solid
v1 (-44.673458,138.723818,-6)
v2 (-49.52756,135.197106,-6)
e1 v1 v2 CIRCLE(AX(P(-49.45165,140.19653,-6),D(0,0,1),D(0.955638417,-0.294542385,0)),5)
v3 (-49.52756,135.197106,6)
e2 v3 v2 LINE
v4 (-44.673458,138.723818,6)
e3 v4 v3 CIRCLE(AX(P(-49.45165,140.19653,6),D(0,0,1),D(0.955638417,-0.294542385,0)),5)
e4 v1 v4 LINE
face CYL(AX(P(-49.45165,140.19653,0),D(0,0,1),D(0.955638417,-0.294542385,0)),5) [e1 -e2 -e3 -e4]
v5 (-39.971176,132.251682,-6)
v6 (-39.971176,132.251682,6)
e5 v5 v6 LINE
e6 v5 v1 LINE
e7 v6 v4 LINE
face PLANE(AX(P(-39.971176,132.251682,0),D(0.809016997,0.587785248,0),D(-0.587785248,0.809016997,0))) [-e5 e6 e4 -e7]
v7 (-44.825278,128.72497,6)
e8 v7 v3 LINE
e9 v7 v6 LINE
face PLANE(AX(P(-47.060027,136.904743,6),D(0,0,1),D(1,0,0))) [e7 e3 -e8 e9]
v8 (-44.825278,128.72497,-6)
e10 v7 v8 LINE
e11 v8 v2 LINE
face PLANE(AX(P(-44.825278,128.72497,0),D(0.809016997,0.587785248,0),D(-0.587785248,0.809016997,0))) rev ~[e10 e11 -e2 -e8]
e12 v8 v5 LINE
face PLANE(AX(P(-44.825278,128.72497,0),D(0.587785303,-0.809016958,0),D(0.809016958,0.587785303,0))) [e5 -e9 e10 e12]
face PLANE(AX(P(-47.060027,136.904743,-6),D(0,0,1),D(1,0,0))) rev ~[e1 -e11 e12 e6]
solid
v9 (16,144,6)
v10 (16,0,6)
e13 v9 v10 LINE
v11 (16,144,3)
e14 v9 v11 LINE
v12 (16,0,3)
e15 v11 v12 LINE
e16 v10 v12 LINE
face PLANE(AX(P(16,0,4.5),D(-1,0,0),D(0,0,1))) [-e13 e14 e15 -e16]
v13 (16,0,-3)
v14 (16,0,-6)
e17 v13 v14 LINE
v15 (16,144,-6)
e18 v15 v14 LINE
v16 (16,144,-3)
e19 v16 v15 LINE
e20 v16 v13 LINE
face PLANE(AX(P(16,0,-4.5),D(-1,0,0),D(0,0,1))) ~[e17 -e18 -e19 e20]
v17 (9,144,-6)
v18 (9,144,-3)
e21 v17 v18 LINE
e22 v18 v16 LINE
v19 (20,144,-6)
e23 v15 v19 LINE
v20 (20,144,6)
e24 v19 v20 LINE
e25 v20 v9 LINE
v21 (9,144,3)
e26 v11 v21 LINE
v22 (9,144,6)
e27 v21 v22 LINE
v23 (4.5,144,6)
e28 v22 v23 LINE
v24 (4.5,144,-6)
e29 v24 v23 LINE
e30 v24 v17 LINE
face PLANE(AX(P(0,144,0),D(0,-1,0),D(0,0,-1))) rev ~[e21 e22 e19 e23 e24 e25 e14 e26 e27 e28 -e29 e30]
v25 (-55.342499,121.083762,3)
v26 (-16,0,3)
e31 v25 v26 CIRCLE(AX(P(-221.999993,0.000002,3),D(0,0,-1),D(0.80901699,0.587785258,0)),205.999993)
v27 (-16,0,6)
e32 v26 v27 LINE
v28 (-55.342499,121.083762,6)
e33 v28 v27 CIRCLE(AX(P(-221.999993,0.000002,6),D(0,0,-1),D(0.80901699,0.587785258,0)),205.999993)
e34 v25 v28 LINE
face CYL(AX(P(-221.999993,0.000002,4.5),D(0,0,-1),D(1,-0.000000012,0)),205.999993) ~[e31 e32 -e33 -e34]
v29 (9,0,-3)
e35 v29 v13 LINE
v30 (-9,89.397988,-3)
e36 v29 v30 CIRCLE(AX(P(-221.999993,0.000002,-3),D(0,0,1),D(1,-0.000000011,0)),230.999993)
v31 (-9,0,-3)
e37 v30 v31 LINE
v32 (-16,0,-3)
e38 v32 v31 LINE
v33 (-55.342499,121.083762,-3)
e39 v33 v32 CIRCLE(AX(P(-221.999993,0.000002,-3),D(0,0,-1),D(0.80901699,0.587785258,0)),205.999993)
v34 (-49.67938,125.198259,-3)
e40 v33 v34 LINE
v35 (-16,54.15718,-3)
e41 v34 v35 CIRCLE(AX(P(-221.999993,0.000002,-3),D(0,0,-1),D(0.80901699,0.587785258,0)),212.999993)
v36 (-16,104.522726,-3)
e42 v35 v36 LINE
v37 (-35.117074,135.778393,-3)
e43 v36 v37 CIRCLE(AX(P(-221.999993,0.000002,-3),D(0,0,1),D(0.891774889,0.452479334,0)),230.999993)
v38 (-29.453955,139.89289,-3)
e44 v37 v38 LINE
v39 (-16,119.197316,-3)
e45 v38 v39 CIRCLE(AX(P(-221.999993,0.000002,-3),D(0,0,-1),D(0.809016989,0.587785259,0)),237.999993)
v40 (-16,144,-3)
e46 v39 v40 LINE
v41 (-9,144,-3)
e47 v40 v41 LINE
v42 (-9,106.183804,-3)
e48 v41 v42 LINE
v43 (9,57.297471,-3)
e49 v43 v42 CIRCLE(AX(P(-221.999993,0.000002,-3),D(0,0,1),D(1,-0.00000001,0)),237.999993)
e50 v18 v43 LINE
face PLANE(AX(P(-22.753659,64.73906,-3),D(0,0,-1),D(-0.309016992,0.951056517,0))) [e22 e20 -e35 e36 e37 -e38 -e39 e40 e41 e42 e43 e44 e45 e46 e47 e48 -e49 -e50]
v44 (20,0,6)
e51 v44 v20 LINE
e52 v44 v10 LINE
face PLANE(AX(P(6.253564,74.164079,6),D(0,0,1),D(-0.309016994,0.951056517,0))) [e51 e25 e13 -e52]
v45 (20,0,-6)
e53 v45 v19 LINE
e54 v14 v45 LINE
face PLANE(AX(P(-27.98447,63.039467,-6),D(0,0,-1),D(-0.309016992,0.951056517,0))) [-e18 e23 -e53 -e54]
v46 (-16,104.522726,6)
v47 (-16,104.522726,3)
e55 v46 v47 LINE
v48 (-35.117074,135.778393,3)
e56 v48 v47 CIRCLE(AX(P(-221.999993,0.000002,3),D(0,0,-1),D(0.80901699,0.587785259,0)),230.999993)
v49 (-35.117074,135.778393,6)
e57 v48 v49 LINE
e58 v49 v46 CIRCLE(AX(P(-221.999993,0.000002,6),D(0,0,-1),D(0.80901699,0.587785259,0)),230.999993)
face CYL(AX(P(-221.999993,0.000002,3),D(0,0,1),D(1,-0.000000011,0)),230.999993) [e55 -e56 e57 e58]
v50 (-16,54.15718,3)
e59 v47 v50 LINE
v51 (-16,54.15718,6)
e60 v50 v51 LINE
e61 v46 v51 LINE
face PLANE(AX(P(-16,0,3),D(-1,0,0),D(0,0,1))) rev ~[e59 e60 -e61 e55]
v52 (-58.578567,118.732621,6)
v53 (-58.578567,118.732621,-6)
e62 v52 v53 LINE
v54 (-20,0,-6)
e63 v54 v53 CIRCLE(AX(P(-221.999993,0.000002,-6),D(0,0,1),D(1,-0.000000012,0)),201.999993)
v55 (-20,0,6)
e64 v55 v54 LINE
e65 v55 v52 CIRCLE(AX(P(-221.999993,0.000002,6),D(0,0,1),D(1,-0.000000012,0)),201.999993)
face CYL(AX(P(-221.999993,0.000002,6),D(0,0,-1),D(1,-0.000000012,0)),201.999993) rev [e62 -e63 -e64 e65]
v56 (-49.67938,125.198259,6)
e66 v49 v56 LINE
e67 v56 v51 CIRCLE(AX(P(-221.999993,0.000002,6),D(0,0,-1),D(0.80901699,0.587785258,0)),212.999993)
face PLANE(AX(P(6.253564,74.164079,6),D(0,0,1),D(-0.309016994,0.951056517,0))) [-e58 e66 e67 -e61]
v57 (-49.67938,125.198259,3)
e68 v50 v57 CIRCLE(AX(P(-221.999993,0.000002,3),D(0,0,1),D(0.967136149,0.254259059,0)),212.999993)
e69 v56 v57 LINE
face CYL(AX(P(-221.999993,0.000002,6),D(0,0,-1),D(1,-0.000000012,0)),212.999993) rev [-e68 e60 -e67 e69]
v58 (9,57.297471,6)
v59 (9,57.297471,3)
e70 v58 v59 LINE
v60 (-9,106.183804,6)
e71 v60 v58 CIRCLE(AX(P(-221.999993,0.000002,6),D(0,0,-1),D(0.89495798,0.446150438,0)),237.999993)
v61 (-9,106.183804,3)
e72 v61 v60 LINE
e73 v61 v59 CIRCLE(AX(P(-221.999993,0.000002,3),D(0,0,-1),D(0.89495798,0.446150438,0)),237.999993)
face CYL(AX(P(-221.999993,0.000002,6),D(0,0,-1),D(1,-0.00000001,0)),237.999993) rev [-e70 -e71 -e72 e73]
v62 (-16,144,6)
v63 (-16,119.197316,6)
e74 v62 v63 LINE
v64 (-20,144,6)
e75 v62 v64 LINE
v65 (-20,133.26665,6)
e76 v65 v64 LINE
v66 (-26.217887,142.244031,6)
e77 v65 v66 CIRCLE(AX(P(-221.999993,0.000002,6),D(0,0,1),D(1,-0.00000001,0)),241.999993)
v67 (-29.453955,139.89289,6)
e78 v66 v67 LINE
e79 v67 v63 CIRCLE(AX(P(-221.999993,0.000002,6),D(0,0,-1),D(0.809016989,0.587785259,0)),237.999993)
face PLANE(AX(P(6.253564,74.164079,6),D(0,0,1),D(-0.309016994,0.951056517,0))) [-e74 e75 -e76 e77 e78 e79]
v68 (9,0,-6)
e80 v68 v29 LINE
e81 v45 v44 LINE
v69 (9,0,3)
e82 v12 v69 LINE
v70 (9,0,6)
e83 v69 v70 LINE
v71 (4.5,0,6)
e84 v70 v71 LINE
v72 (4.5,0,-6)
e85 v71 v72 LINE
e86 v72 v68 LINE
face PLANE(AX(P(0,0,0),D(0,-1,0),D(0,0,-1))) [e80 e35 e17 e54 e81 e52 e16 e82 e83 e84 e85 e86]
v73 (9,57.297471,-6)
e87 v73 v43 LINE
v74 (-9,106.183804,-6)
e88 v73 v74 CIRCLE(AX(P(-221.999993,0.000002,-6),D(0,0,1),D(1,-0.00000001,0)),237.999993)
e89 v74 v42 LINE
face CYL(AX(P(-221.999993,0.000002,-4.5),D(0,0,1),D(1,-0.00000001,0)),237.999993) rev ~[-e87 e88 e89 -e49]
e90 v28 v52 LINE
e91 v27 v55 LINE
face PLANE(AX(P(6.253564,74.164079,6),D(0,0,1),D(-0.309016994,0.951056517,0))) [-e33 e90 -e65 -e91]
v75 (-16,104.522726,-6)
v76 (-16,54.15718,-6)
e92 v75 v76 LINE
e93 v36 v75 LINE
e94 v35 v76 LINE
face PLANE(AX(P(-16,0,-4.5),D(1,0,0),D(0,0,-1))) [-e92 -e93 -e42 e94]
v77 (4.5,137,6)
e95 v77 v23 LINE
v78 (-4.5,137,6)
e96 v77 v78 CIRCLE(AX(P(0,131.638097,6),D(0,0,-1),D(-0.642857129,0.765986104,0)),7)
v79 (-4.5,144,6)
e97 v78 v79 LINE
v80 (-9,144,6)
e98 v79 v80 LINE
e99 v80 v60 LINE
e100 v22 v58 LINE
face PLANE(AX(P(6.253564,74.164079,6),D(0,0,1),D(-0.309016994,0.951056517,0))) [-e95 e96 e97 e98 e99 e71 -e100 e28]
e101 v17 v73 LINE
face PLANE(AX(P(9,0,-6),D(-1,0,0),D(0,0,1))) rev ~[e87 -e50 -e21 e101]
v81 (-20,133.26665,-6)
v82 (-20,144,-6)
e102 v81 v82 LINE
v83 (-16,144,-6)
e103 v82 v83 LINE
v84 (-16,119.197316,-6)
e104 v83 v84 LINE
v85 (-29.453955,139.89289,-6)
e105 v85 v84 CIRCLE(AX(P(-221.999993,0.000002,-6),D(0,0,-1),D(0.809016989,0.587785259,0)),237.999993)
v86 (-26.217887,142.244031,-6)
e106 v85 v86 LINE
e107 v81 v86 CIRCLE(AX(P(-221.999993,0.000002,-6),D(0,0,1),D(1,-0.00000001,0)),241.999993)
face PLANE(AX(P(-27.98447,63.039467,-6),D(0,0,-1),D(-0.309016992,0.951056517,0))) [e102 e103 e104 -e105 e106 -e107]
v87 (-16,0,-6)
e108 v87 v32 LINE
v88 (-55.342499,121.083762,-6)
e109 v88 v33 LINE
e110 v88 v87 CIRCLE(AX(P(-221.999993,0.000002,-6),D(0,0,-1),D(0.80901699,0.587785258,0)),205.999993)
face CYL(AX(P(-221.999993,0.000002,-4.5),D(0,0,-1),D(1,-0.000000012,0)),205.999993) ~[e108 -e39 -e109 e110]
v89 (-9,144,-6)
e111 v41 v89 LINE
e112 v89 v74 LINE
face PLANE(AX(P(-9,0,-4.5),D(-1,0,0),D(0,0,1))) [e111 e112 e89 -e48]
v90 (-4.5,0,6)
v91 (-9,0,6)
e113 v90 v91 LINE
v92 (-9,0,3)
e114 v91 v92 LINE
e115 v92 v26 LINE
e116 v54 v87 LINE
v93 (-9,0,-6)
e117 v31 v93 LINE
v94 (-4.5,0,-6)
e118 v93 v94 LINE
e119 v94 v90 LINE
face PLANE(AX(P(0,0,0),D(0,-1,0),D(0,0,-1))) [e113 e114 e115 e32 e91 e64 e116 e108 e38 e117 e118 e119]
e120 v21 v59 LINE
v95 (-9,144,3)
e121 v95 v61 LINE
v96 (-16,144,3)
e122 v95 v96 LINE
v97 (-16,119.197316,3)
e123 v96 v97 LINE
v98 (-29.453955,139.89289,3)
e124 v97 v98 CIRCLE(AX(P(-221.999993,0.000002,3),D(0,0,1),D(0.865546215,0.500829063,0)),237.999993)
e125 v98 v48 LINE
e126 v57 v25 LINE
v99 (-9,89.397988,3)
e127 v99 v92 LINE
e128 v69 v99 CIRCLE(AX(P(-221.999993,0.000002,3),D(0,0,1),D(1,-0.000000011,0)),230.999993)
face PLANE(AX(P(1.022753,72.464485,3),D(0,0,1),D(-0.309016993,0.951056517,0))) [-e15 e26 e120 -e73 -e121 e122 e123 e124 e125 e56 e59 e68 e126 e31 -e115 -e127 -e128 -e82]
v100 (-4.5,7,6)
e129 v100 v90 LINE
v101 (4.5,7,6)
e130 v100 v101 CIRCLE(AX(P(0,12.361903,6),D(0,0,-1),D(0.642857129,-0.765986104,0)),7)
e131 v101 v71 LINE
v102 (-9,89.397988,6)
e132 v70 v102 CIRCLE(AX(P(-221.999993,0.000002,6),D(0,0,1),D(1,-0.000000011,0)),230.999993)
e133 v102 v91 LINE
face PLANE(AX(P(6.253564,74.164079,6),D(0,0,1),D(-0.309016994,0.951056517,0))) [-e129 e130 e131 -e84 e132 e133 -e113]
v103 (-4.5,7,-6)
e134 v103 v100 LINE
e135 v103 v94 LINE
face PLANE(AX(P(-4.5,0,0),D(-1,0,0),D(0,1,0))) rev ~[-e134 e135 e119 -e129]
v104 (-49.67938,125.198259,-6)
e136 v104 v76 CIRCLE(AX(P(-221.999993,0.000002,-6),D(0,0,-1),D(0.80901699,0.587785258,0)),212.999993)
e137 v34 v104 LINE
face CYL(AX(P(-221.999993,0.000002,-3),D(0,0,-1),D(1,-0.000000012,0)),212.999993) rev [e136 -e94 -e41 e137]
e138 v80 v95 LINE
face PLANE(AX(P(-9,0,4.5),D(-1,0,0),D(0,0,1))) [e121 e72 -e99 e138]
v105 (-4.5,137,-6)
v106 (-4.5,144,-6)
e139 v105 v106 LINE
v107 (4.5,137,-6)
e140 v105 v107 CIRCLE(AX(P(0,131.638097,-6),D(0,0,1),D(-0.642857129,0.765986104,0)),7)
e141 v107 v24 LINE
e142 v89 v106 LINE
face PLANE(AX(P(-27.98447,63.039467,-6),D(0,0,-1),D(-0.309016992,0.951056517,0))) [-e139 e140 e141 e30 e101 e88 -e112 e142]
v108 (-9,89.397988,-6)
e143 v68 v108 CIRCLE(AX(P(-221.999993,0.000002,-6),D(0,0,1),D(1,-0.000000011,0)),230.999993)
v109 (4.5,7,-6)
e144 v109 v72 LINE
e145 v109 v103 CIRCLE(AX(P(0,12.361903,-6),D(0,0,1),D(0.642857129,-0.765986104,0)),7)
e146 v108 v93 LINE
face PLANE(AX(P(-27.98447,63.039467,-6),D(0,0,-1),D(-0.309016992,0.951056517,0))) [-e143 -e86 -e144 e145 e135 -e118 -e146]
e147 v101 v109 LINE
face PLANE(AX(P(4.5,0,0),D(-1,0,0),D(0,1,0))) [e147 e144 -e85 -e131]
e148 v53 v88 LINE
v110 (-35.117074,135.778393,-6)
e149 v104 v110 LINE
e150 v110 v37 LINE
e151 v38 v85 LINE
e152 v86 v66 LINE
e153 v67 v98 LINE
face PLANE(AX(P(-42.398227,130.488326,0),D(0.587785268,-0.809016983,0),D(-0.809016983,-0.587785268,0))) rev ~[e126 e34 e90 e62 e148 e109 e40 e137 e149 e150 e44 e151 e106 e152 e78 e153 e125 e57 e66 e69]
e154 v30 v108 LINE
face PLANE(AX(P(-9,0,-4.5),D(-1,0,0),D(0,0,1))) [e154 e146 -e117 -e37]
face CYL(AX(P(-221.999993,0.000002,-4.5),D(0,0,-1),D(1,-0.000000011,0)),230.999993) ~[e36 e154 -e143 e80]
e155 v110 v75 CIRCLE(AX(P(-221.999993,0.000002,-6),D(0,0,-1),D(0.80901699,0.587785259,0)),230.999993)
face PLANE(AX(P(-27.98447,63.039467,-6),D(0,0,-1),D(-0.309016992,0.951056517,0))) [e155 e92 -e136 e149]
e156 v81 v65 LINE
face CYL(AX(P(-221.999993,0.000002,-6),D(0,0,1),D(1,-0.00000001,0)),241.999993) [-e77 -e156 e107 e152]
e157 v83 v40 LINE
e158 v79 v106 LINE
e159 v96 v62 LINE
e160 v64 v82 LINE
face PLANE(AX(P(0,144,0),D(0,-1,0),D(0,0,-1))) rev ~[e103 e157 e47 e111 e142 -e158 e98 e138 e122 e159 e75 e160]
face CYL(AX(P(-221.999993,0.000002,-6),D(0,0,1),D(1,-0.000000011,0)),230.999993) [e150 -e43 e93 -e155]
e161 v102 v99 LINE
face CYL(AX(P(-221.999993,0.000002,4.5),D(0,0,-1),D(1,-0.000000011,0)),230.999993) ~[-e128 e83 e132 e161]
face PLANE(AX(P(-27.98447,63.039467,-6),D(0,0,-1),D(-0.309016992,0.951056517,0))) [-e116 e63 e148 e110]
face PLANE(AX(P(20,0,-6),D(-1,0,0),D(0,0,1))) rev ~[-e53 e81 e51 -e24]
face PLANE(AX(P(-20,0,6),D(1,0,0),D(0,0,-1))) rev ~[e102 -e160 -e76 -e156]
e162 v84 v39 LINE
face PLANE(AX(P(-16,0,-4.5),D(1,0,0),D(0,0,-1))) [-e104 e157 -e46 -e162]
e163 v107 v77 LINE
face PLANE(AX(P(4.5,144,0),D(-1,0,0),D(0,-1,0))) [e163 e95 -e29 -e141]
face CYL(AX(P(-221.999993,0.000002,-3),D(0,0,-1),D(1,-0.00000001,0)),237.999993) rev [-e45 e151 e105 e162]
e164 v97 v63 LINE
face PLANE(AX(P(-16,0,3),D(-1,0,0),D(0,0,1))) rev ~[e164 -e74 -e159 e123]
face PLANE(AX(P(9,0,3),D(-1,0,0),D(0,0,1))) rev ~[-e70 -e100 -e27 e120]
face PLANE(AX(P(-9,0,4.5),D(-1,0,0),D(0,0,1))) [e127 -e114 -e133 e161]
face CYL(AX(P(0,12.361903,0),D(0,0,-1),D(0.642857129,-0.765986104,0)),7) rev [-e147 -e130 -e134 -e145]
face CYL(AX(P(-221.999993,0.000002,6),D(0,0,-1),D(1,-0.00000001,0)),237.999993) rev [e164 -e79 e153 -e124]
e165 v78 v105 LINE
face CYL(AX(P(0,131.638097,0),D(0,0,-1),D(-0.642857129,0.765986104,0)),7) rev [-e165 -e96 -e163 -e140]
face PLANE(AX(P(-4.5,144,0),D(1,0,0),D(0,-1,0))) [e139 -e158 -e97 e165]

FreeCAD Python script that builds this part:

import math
import FreeCAD as App
import Part
import Sketcher
Q = App.Units.Quantity

doc = App.newDocument("Part")
body = doc.addObject("PartDesign::Body", "Body")

# Sketch on XZ plane
sketch1 = body.newObject("Sketcher::SketchObject", "Sketch")
sketch1.AttachmentSupport = (doc.getObject("XZ_Plane"), [""])
sketch1.MapMode = "FlatFace"
sketch1.addGeometry(Part.LineSegment(App.Vector(-20, 6, 0), App.Vector(-20, -6, 0)), False)
sketch1.addGeometry(Part.LineSegment(App.Vector(-20, -6, 0), App.Vector(-16, -6, 0)), False)
sketch1.addGeometry(Part.LineSegment(App.Vector(-16, -6, 0), App.Vector(-16, -3, 0)), False)
sketch1.addGeometry(Part.LineSegment(App.Vector(-16, -3, 0), App.Vector(-9, -3, 0)), False)
sketch1.addGeometry(Part.LineSegment(App.Vector(-9, -3, 0), App.Vector(-9, -6, 0)), False)
sketch1.addGeometry(Part.LineSegment(App.Vector(-9, -6, 0), App.Vector(9, -6, 0)), False)
sketch1.addGeometry(Part.LineSegment(App.Vector(9, -6, 0), App.Vector(9, -3, 0)), False)
sketch1.addGeometry(Part.LineSegment(App.Vector(9, -3, 0), App.Vector(16, -3, 0)), False)
sketch1.addGeometry(Part.LineSegment(App.Vector(16, -3, 0), App.Vector(16, -6, 0)), False)
sketch1.addGeometry(Part.LineSegment(App.Vector(16, -6, 0), App.Vector(20, -6, 0)), False)
sketch1.addGeometry(Part.LineSegment(App.Vector(20, -6, 0), App.Vector(20, 6, 0)), False)
sketch1.addGeometry(Part.LineSegment(App.Vector(20, 6, 0), App.Vector(16, 6, 0)), False)
sketch1.addGeometry(Part.LineSegment(App.Vector(16, 6, 0), App.Vector(16, 3, 0)), False)
sketch1.addGeometry(Part.LineSegment(App.Vector(16, 3, 0), App.Vector(9, 3, 0)), False)
sketch1.addGeometry(Part.LineSegment(App.Vector(9, 3, 0), App.Vector(9, 6, 0)), False)
sketch1.addGeometry(Part.LineSegment(App.Vector(9, 6, 0), App.Vector(-9, 6, 0)), False)
sketch1.addGeometry(Part.LineSegment(App.Vector(-9, 6, 0), App.Vector(-9, 3, 0)), False)
sketch1.addGeometry(Part.LineSegment(App.Vector(-9, 3, 0), App.Vector(-16, 3, 0)), False)
sketch1.addGeometry(Part.LineSegment(App.Vector(-16, 3, 0), App.Vector(-16, 6, 0)), False)
sketch1.addGeometry(Part.LineSegment(App.Vector(-16, 6, 0), App.Vector(-20, 6, 0)), False)
sketch1.addConstraint(Sketcher.Constraint("Coincident", 0, 2, 1, 1))
sketch1.addConstraint(Sketcher.Constraint("Coincident", 1, 2, 2, 1))
sketch1.addConstraint(Sketcher.Constraint("Coincident", 2, 2, 3, 1))
sketch1.addConstraint(Sketcher.Constraint("Coincident", 3, 2, 4, 1))
sketch1.addConstraint(Sketcher.Constraint("Coincident", 4, 2, 5, 1))
sketch1.addConstraint(Sketcher.Constraint("Coincident", 5, 2, 6, 1))
sketch1.addConstraint(Sketcher.Constraint("Coincident", 6, 2, 7, 1))
sketch1.addConstraint(Sketcher.Constraint("Coincident", 7, 2, 8, 1))
sketch1.addConstraint(Sketcher.Constraint("Coincident", 8, 2, 9, 1))
sketch1.addConstraint(Sketcher.Constraint("Coincident", 9, 2, 10, 1))
sketch1.addConstraint(Sketcher.Constraint("Coincident", 10, 2, 11, 1))
sketch1.addConstraint(Sketcher.Constraint("Coincident", 11, 2, 12, 1))
sketch1.addConstraint(Sketcher.Constraint("Coincident", 12, 2, 13, 1))
sketch1.addConstraint(Sketcher.Constraint("Coincident", 13, 2, 14, 1))
sketch1.addConstraint(Sketcher.Constraint("Coincident", 14, 2, 15, 1))
sketch1.addConstraint(Sketcher.Constraint("Coincident", 15, 2, 16, 1))
sketch1.addConstraint(Sketcher.Constraint("Coincident", 16, 2, 17, 1))
sketch1.addConstraint(Sketcher.Constraint("Coincident", 17, 2, 18, 1))
sketch1.addConstraint(Sketcher.Constraint("Coincident", 18, 2, 19, 1))
sketch1.addConstraint(Sketcher.Constraint("Coincident", 19, 2, 0, 1))
sketch1.addConstraint(Sketcher.Constraint("Vertical", 0))
sketch1.addConstraint(Sketcher.Constraint("Horizontal", 1))
sketch1.addConstraint(Sketcher.Constraint("Vertical", 2))
sketch1.addConstraint(Sketcher.Constraint("Horizontal", 3))
sketch1.addConstraint(Sketcher.Constraint("Vertical", 4))
sketch1.addConstraint(Sketcher.Constraint("Horizontal", 5))
sketch1.addConstraint(Sketcher.Constraint("Vertical", 6))
sketch1.addConstraint(Sketcher.Constraint("Horizontal", 7))
sketch1.addConstraint(Sketcher.Constraint("Vertical", 8))
sketch1.addConstraint(Sketcher.Constraint("Horizontal", 9))
sketch1.addConstraint(Sketcher.Constraint("Vertical", 10))
sketch1.addConstraint(Sketcher.Constraint("Horizontal", 11))
sketch1.addConstraint(Sketcher.Constraint("Vertical", 12))
sketch1.addConstraint(Sketcher.Constraint("Horizontal", 13))
sketch1.addConstraint(Sketcher.Constraint("Vertical", 14))
sketch1.addConstraint(Sketcher.Constraint("Horizontal", 15))
sketch1.addConstraint(Sketcher.Constraint("Vertical", 16))
sketch1.addConstraint(Sketcher.Constraint("Horizontal", 17))
sketch1.addConstraint(Sketcher.Constraint("Vertical", 18))
sketch1.addConstraint(Sketcher.Constraint("Horizontal", 19))
sketch1.addConstraint(Sketcher.Constraint("Symmetric", 0, 2, 10, 2, -1, 1))
sketch1.addConstraint(Sketcher.Constraint("Symmetric", 2, 2, 12, 2, -1, 1))
sketch1.addConstraint(Sketcher.Constraint("Symmetric", 4, 2, 14, 2, -1, 1))
sketch1.addConstraint(Sketcher.Constraint("Symmetric", 6, 2, 16, 2, -1, 1))
sketch1.addConstraint(Sketcher.Constraint("Symmetric", 8, 2, 18, 2, -1, 1))
sketch1.addConstraint(Sketcher.Constraint("Symmetric", 3, 2, 6, 2, -2))
sketch1.addConstraint(Sketcher.Constraint("Symmetric", 1, 2, 8, 2, -2))
sketch1.addConstraint(Sketcher.Constraint("Horizontal", 1, 2, 4, 2))
sketch1.addConstraint(Sketcher.Constraint("DistanceX", 1, 1, 1, 2, Q("4 mm")))
sketch1.addConstraint(Sketcher.Constraint("DistanceX", 3, 1, 3, 2, Q("7 mm")))
sketch1.addConstraint(Sketcher.Constraint("DistanceX", 5, 1, 5, 2, Q("18 mm")))
sketch1.addConstraint(Sketcher.Constraint("DistanceY", 0, 2, 0, 1, Q("12 mm")))
sketch1.addConstraint(Sketcher.Constraint("DistanceY", 2, 1, 2, 2, Q("3 mm")))

# Sketch on XY plane
sketch2 = body.newObject("Sketcher::SketchObject", "Sketch001")
sketch2.AttachmentSupport = (doc.getObject("XY_Plane"), [""])
sketch2.MapMode = "FlatFace"
sketch2.addGeometry(Part.ArcOfCircle(Part.Circle(App.Vector(-221.999993, 0.000002, 0), App.Vector(0, 0, 1), 221.999993), math.radians(-0.000001), math.radians(36)), False)
sketch2.addConstraint(Sketcher.Constraint("Coincident", 0, 1, -1, 1))
sketch2.addConstraint(Sketcher.Constraint("Radius", 0, Q("221.999993 mm")))
sketch2.addConstraint(Sketcher.Constraint("DistanceX", 0, 2, -1, 1, Q("42.398227 mm")))
sketch2.addConstraint(Sketcher.Constraint("DistanceY", -1, 1, 0, 2, Q("130.488326 mm")))
doc.recompute()

additivepipe = body.newObject("PartDesign::AdditivePipe", "AdditivePipe")
additivepipe.Profile = sketch1
additivepipe.Spine = (sketch2, ["Edge1"])

# Sketch on XZ plane
sketch3 = body.newObject("Sketcher::SketchObject", "Sketch002")
sketch3.AttachmentSupport = (doc.getObject("XZ_Plane"), [""])
sketch3.MapMode = "FlatFace"
sketch3.addGeometry(Part.LineSegment(App.Vector(-20, 6, 0), App.Vector(-20, -6, 0)), False)
sketch3.addGeometry(Part.LineSegment(App.Vector(-20, -6, 0), App.Vector(-16, -6, 0)), False)
sketch3.addGeometry(Part.LineSegment(App.Vector(-16, -6, 0), App.Vector(-16, -3, 0)), False)
sketch3.addGeometry(Part.LineSegment(App.Vector(-16, -3, 0), App.Vector(-9, -3, 0)), False)
sketch3.addGeometry(Part.LineSegment(App.Vector(-9, -3, 0), App.Vector(-9, -6, 0)), False)
sketch3.addGeometry(Part.LineSegment(App.Vector(-9, -6, 0), App.Vector(9, -6, 0)), False)
sketch3.addGeometry(Part.LineSegment(App.Vector(9, -6, 0), App.Vector(9, -3, 0)), False)
sketch3.addGeometry(Part.LineSegment(App.Vector(9, -3, 0), App.Vector(16, -3, 0)), False)
sketch3.addGeometry(Part.LineSegment(App.Vector(16, -3, 0), App.Vector(16, -6, 0)), False)
sketch3.addGeometry(Part.LineSegment(App.Vector(16, -6, 0), App.Vector(20, -6, 0)), False)
sketch3.addGeometry(Part.LineSegment(App.Vector(20, -6, 0), App.Vector(20, 6, 0)), False)
sketch3.addGeometry(Part.LineSegment(App.Vector(20, 6, 0), App.Vector(16, 6, 0)), False)
sketch3.addGeometry(Part.LineSegment(App.Vector(16, 6, 0), App.Vector(16, 3, 0)), False)
sketch3.addGeometry(Part.LineSegment(App.Vector(16, 3, 0), App.Vector(9, 3, 0)), False)
sketch3.addGeometry(Part.LineSegment(App.Vector(9, 3, 0), App.Vector(9, 6, 0)), False)
sketch3.addGeometry(Part.LineSegment(App.Vector(9, 6, 0), App.Vector(-9, 6, 0)), False)
sketch3.addGeometry(Part.LineSegment(App.Vector(-9, 6, 0), App.Vector(-9, 3, 0)), False)
sketch3.addGeometry(Part.LineSegment(App.Vector(-9, 3, 0), App.Vector(-16, 3, 0)), False)
sketch3.addGeometry(Part.LineSegment(App.Vector(-16, 3, 0), App.Vector(-16, 6, 0)), False)
sketch3.addGeometry(Part.LineSegment(App.Vector(-16, 6, 0), App.Vector(-20, 6, 0)), False)
sketch3.addConstraint(Sketcher.Constraint("Coincident", 0, 2, 1, 1))
sketch3.addConstraint(Sketcher.Constraint("Coincident", 1, 2, 2, 1))
sketch3.addConstraint(Sketcher.Constraint("Coincident", 2, 2, 3, 1))
sketch3.addConstraint(Sketcher.Constraint("Coincident", 3, 2, 4, 1))
sketch3.addConstraint(Sketcher.Constraint("Coincident", 4, 2, 5, 1))
sketch3.addConstraint(Sketcher.Constraint("Coincident", 5, 2, 6, 1))
sketch3.addConstraint(Sketcher.Constraint("Coincident", 6, 2, 7, 1))
sketch3.addConstraint(Sketcher.Constraint("Coincident", 7, 2, 8, 1))
sketch3.addConstraint(Sketcher.Constraint("Coincident", 8, 2, 9, 1))
sketch3.addConstraint(Sketcher.Constraint("Coincident", 9, 2, 10, 1))
sketch3.addConstraint(Sketcher.Constraint("Coincident", 10, 2, 11, 1))
sketch3.addConstraint(Sketcher.Constraint("Coincident", 11, 2, 12, 1))
sketch3.addConstraint(Sketcher.Constraint("Coincident", 12, 2, 13, 1))
sketch3.addConstraint(Sketcher.Constraint("Coincident", 13, 2, 14, 1))
sketch3.addConstraint(Sketcher.Constraint("Coincident", 14, 2, 15, 1))
sketch3.addConstraint(Sketcher.Constraint("Coincident", 15, 2, 16, 1))
sketch3.addConstraint(Sketcher.Constraint("Coincident", 16, 2, 17, 1))
sketch3.addConstraint(Sketcher.Constraint("Coincident", 17, 2, 18, 1))
sketch3.addConstraint(Sketcher.Constraint("Coincident", 18, 2, 19, 1))
sketch3.addConstraint(Sketcher.Constraint("Coincident", 19, 2, 0, 1))
sketch3.addConstraint(Sketcher.Constraint("Vertical", 0))
sketch3.addConstraint(Sketcher.Constraint("Horizontal", 1))
sketch3.addConstraint(Sketcher.Constraint("Vertical", 2))
sketch3.addConstraint(Sketcher.Constraint("Horizontal", 3))
sketch3.addConstraint(Sketcher.Constraint("Vertical", 4))
sketch3.addConstraint(Sketcher.Constraint("Horizontal", 5))
sketch3.addConstraint(Sketcher.Constraint("Vertical", 6))
sketch3.addConstraint(Sketcher.Constraint("Horizontal", 7))
sketch3.addConstraint(Sketcher.Constraint("Vertical", 8))
sketch3.addConstraint(Sketcher.Constraint("Horizontal", 9))
sketch3.addConstraint(Sketcher.Constraint("Vertical", 10))
sketch3.addConstraint(Sketcher.Constraint("Horizontal", 11))
sketch3.addConstraint(Sketcher.Constraint("Vertical", 12))
sketch3.addConstraint(Sketcher.Constraint("Horizontal", 13))
sketch3.addConstraint(Sketcher.Constraint("Vertical", 14))
sketch3.addConstraint(Sketcher.Constraint("Horizontal", 15))
sketch3.addConstraint(Sketcher.Constraint("Vertical", 16))
sketch3.addConstraint(Sketcher.Constraint("Horizontal", 17))
sketch3.addConstraint(Sketcher.Constraint("Vertical", 18))
sketch3.addConstraint(Sketcher.Constraint("Horizontal", 19))
sketch3.addConstraint(Sketcher.Constraint("Symmetric", 0, 2, 10, 2, -1, 1))
sketch3.addConstraint(Sketcher.Constraint("Symmetric", 2, 2, 12, 2, -1, 1))
sketch3.addConstraint(Sketcher.Constraint("Symmetric", 4, 2, 14, 2, -1, 1))
sketch3.addConstraint(Sketcher.Constraint("Symmetric", 6, 2, 16, 2, -1, 1))
sketch3.addConstraint(Sketcher.Constraint("Symmetric", 8, 2, 18, 2, -1, 1))
sketch3.addConstraint(Sketcher.Constraint("Symmetric", 3, 2, 6, 2, -2))
sketch3.addConstraint(Sketcher.Constraint("Symmetric", 1, 2, 8, 2, -2))
sketch3.addConstraint(Sketcher.Constraint("Horizontal", 1, 2, 4, 2))
sketch3.addConstraint(Sketcher.Constraint("DistanceX", 1, 1, 1, 2, Q("4 mm")))
sketch3.addConstraint(Sketcher.Constraint("DistanceX", 3, 1, 3, 2, Q("7 mm")))
sketch3.addConstraint(Sketcher.Constraint("DistanceX", 5, 1, 5, 2, Q("18 mm")))
sketch3.addConstraint(Sketcher.Constraint("DistanceY", 0, 2, 0, 1, Q("12 mm")))
sketch3.addConstraint(Sketcher.Constraint("DistanceY", 2, 1, 2, 2, Q("3 mm")))

# Sketch on XY plane
sketch4 = body.newObject("Sketcher::SketchObject", "Sketch003")
sketch4.AttachmentSupport = (doc.getObject("XY_Plane"), [""])
sketch4.MapMode = "FlatFace"
sketch4.addGeometry(Part.LineSegment(App.Vector(0, 0, 0), App.Vector(0, 144, 0)), False)
sketch4.addConstraint(Sketcher.Constraint("Vertical", 0))
sketch4.addConstraint(Sketcher.Constraint("Coincident", 0, 1, -1, 1))
sketch4.addConstraint(Sketcher.Constraint("DistanceY", 0, 1, 0, 2, Q("144 mm")))
doc.recompute()

additivepipe2 = body.newObject("PartDesign::AdditivePipe", "AdditivePipe001")
additivepipe2.Profile = sketch3
additivepipe2.Spine = (sketch4, ["Edge1"])

# Sketch on XZ plane
sketch5 = body.newObject("Sketcher::SketchObject", "Sketch004")
sketch5.AttachmentSupport = (doc.getObject("XZ_Plane"), [""])
sketch5.MapMode = "FlatFace"
sketch5.addGeometry(Part.LineSegment(App.Vector(-16, 6, 0), App.Vector(-16, 3, 0)), False)
sketch5.addGeometry(Part.LineSegment(App.Vector(-16, 3, 0), App.Vector(-9, 3, 0)), False)
sketch5.addGeometry(Part.LineSegment(App.Vector(-9, 3, 0), App.Vector(-9, 6, 0)), False)
sketch5.addGeometry(Part.LineSegment(App.Vector(-9, 6, 0), App.Vector(-16, 6, 0)), False)
sketch5.addConstraint(Sketcher.Constraint("Coincident", 0, 2, 1, 1))
sketch5.addConstraint(Sketcher.Constraint("Coincident", 1, 2, 2, 1))
sketch5.addConstraint(Sketcher.Constraint("Coincident", 2, 2, 3, 1))
sketch5.addConstraint(Sketcher.Constraint("Coincident", 3, 2, 0, 1))
sketch5.addConstraint(Sketcher.Constraint("Vertical", 0))
sketch5.addConstraint(Sketcher.Constraint("Horizontal", 1))
sketch5.addConstraint(Sketcher.Constraint("Vertical", 2))
sketch5.addConstraint(Sketcher.Constraint("Horizontal", 3))
sketch5.addConstraint(Sketcher.Constraint("DistanceX", 1, 1, 1, 2, Q("7 mm")))
sketch5.addConstraint(Sketcher.Constraint("DistanceY", 0, 2, 0, 1, Q("3 mm")))
sketch5.addConstraint(Sketcher.Constraint("DistanceX", 0, 2, -1, 1, Q("16 mm")))
sketch5.addConstraint(Sketcher.Constraint("DistanceY", -1, 1, 0, 2, Q("3 mm")))

# Sketch on XY plane
sketch6 = body.newObject("Sketcher::SketchObject", "Sketch005")
sketch6.AttachmentSupport = (doc.getObject("XY_Plane"), [""])
sketch6.MapMode = "FlatFace"
sketch6.addGeometry(Part.LineSegment(App.Vector(0, 0, 0), App.Vector(0, 144, 0)), False)
sketch6.addConstraint(Sketcher.Constraint("Vertical", 0))
sketch6.addConstraint(Sketcher.Constraint("Coincident", 0, 1, -1, 1))
sketch6.addConstraint(Sketcher.Constraint("DistanceY", 0, 1, 0, 2, Q("144 mm")))
doc.recompute()

subtractivepipe = body.newObject("PartDesign::SubtractivePipe", "SubtractivePipe")
subtractivepipe.Profile = sketch5
subtractivepipe.Spine = (sketch6, ["Edge1"])

# Sketch on XZ plane
sketch7 = body.newObject("Sketcher::SketchObject", "Sketch006")
sketch7.AttachmentSupport = (doc.getObject("XZ_Plane"), [""])
sketch7.MapMode = "FlatFace"
sketch7.addGeometry(Part.LineSegment(App.Vector(-16, 6, 0), App.Vector(-16, 3, 0)), False)
sketch7.addGeometry(Part.LineSegment(App.Vector(-16, 3, 0), App.Vector(-9, 3, 0)), False)
sketch7.addGeometry(Part.LineSegment(App.Vector(-9, 3, 0), App.Vector(-9, 6, 0)), False)
sketch7.addGeometry(Part.LineSegment(App.Vector(-9, 6, 0), App.Vector(-16, 6, 0)), False)
sketch7.addConstraint(Sketcher.Constraint("Coincident", 0, 2, 1, 1))
sketch7.addConstraint(Sketcher.Constraint("Coincident", 1, 2, 2, 1))
sketch7.addConstraint(Sketcher.Constraint("Coincident", 2, 2, 3, 1))
sketch7.addConstraint(Sketcher.Constraint("Coincident", 3, 2, 0, 1))
sketch7.addConstraint(Sketcher.Constraint("Vertical", 0))
sketch7.addConstraint(Sketcher.Constraint("Horizontal", 1))
sketch7.addConstraint(Sketcher.Constraint("Vertical", 2))
sketch7.addConstraint(Sketcher.Constraint("Horizontal", 3))
sketch7.addConstraint(Sketcher.Constraint("DistanceX", 1, 1, 1, 2, Q("7 mm")))
sketch7.addConstraint(Sketcher.Constraint("DistanceY", 0, 2, 0, 1, Q("3 mm")))
sketch7.addConstraint(Sketcher.Constraint("DistanceX", 0, 2, -1, 1, Q("16 mm")))
sketch7.addConstraint(Sketcher.Constraint("DistanceY", -1, 1, 0, 2, Q("3 mm")))

# Sketch on XY plane
sketch8 = body.newObject("Sketcher::SketchObject", "Sketch007")
sketch8.AttachmentSupport = (doc.getObject("XY_Plane"), [""])
sketch8.MapMode = "FlatFace"
sketch8.addGeometry(Part.ArcOfCircle(Part.Circle(App.Vector(-221.999993, 0.000002, 0), App.Vector(0, 0, 1), 221.999993), math.radians(-0.000001), math.radians(36)), False)
sketch8.addConstraint(Sketcher.Constraint("Coincident", 0, 1, -1, 1))
sketch8.addConstraint(Sketcher.Constraint("Radius", 0, Q("221.999993 mm")))
sketch8.addConstraint(Sketcher.Constraint("DistanceX", 0, 2, -1, 1, Q("42.398227 mm")))
sketch8.addConstraint(Sketcher.Constraint("DistanceY", -1, 1, 0, 2, Q("130.488326 mm")))
doc.recompute()

subtractivepipe2 = body.newObject("PartDesign::SubtractivePipe", "SubtractivePipe001")
subtractivepipe2.Profile = sketch7
subtractivepipe2.Spine = (sketch8, ["Edge1"])

# Sketch on XZ plane
sketch9 = body.newObject("Sketcher::SketchObject", "Sketch008")
sketch9.AttachmentSupport = (doc.getObject("XZ_Plane"), [""])
sketch9.MapMode = "FlatFace"
sketch9.addGeometry(Part.LineSegment(App.Vector(9, 6, 0), App.Vector(9, 3, 0)), False)
sketch9.addGeometry(Part.LineSegment(App.Vector(9, 3, 0), App.Vector(16, 3, 0)), False)
sketch9.addGeometry(Part.LineSegment(App.Vector(16, 3, 0), App.Vector(16, 6, 0)), False)
sketch9.addGeometry(Part.LineSegment(App.Vector(16, 6, 0), App.Vector(9, 6, 0)), False)
sketch9.addConstraint(Sketcher.Constraint("Coincident", 0, 2, 1, 1))
sketch9.addConstraint(Sketcher.Constraint("Coincident", 1, 2, 2, 1))
sketch9.addConstraint(Sketcher.Constraint("Coincident", 2, 2, 3, 1))
sketch9.addConstraint(Sketcher.Constraint("Coincident", 3, 2, 0, 1))
sketch9.addConstraint(Sketcher.Constraint("Vertical", 0))
sketch9.addConstraint(Sketcher.Constraint("Horizontal", 1))
sketch9.addConstraint(Sketcher.Constraint("Vertical", 2))
sketch9.addConstraint(Sketcher.Constraint("Horizontal", 3))
sketch9.addConstraint(Sketcher.Constraint("DistanceX", 1, 1, 1, 2, Q("7 mm")))
sketch9.addConstraint(Sketcher.Constraint("DistanceY", 0, 2, 0, 1, Q("3 mm")))
sketch9.addConstraint(Sketcher.Constraint("DistanceX", -1, 1, 0, 2, Q("9 mm")))
sketch9.addConstraint(Sketcher.Constraint("DistanceY", -1, 1, 0, 2, Q("3 mm")))

# Sketch on XY plane
sketch10 = body.newObject("Sketcher::SketchObject", "Sketch009")
sketch10.AttachmentSupport = (doc.getObject("XY_Plane"), [""])
sketch10.MapMode = "FlatFace"
sketch10.addGeometry(Part.ArcOfCircle(Part.Circle(App.Vector(-221.999993, 0.000002, 0), App.Vector(0, 0, 1), 221.999993), math.radians(-0.000001), math.radians(36)), False)
sketch10.addConstraint(Sketcher.Constraint("Coincident", 0, 1, -1, 1))
sketch10.addConstraint(Sketcher.Constraint("Radius", 0, Q("221.999993 mm")))
sketch10.addConstraint(Sketcher.Constraint("DistanceX", 0, 2, -1, 1, Q("42.398227 mm")))
sketch10.addConstraint(Sketcher.Constraint("DistanceY", -1, 1, 0, 2, Q("130.488326 mm")))
doc.recompute()

subtractivepipe3 = body.newObject("PartDesign::SubtractivePipe", "SubtractivePipe002")
subtractivepipe3.Profile = sketch9
subtractivepipe3.Spine = (sketch10, ["Edge1"])

# Sketch on XZ plane
sketch11 = body.newObject("Sketcher::SketchObject", "Sketch010")
sketch11.AttachmentSupport = (doc.getObject("XZ_Plane"), [""])
sketch11.MapMode = "FlatFace"
sketch11.addGeometry(Part.LineSegment(App.Vector(9, 6, 0), App.Vector(9, 3, 0)), False)
sketch11.addGeometry(Part.LineSegment(App.Vector(9, 3, 0), App.Vector(16, 3, 0)), False)
sketch11.addGeometry(Part.LineSegment(App.Vector(16, 3, 0), App.Vector(16, 6, 0)), False)
sketch11.addGeometry(Part.LineSegment(App.Vector(16, 6, 0), App.Vector(9, 6, 0)), False)
sketch11.addConstraint(Sketcher.Constraint("Coincident", 0, 2, 1, 1))
sketch11.addConstraint(Sketcher.Constraint("Coincident", 1, 2, 2, 1))
sketch11.addConstraint(Sketcher.Constraint("Coincident", 2, 2, 3, 1))
sketch11.addConstraint(Sketcher.Constraint("Coincident", 3, 2, 0, 1))
sketch11.addConstraint(Sketcher.Constraint("Vertical", 0))
sketch11.addConstraint(Sketcher.Constraint("Horizontal", 1))
sketch11.addConstraint(Sketcher.Constraint("Vertical", 2))
sketch11.addConstraint(Sketcher.Constraint("Horizontal", 3))
sketch11.addConstraint(Sketcher.Constraint("DistanceX", 1, 1, 1, 2, Q("7 mm")))
sketch11.addConstraint(Sketcher.Constraint("DistanceY", 0, 2, 0, 1, Q("3 mm")))
sketch11.addConstraint(Sketcher.Constraint("DistanceX", -1, 1, 0, 2, Q("9 mm")))
sketch11.addConstraint(Sketcher.Constraint("DistanceY", -1, 1, 0, 2, Q("3 mm")))

# Sketch on XY plane
sketch12 = body.newObject("Sketcher::SketchObject", "Sketch011")
sketch12.AttachmentSupport = (doc.getObject("XY_Plane"), [""])
sketch12.MapMode = "FlatFace"
sketch12.addGeometry(Part.LineSegment(App.Vector(0, 0, 0), App.Vector(0, 144, 0)), False)
sketch12.addConstraint(Sketcher.Constraint("Vertical", 0))
sketch12.addConstraint(Sketcher.Constraint("Coincident", 0, 1, -1, 1))
sketch12.addConstraint(Sketcher.Constraint("DistanceY", 0, 1, 0, 2, Q("144 mm")))
doc.recompute()

subtractivepipe4 = body.newObject("PartDesign::SubtractivePipe", "SubtractivePipe003")
subtractivepipe4.Profile = sketch11
subtractivepipe4.Spine = (sketch12, ["Edge1"])
doc.recompute()

mirrored = body.newObject("PartDesign::Mirrored", "Mirrored")
mirrored.Originals = [subtractivepipe4]
mirrored.MirrorPlane = (doc.getObject("XY_Plane"), [""])
body.Tip = mirrored

# Sketch on XZ plane
sketch13 = body.newObject("Sketcher::SketchObject", "Sketch012")
sketch13.AttachmentSupport = (doc.getObject("XZ_Plane"), [""])
sketch13.MapMode = "FlatFace"
sketch13.addGeometry(Part.LineSegment(App.Vector(-16, -3, 0), App.Vector(-16, -6, 0)), False)
sketch13.addGeometry(Part.LineSegment(App.Vector(-16, -6, 0), App.Vector(-9, -6, 0)), False)
sketch13.addGeometry(Part.LineSegment(App.Vector(-9, -6, 0), App.Vector(-9, -3, 0)), False)
sketch13.addGeometry(Part.LineSegment(App.Vector(-9, -3, 0), App.Vector(-16, -3, 0)), False)
sketch13.addConstraint(Sketcher.Constraint("Coincident", 0, 2, 1, 1))
sketch13.addConstraint(Sketcher.Constraint("Coincident", 1, 2, 2, 1))
sketch13.addConstraint(Sketcher.Constraint("Coincident", 2, 2, 3, 1))
sketch13.addConstraint(Sketcher.Constraint("Coincident", 3, 2, 0, 1))
sketch13.addConstraint(Sketcher.Constraint("Vertical", 0))
sketch13.addConstraint(Sketcher.Constraint("Horizontal", 1))
sketch13.addConstraint(Sketcher.Constraint("Vertical", 2))
sketch13.addConstraint(Sketcher.Constraint("Horizontal", 3))
sketch13.addConstraint(Sketcher.Constraint("DistanceX", 1, 1, 1, 2, Q("7 mm")))
sketch13.addConstraint(Sketcher.Constraint("DistanceY", 0, 2, 0, 1, Q("3 mm")))
sketch13.addConstraint(Sketcher.Constraint("DistanceX", 0, 2, -1, 1, Q("16 mm")))
sketch13.addConstraint(Sketcher.Constraint("DistanceY", 0, 2, -1, 1, Q("6 mm")))

# Sketch on XY plane
sketch14 = body.newObject("Sketcher::SketchObject", "Sketch013")
sketch14.AttachmentSupport = (doc.getObject("XY_Plane"), [""])
sketch14.MapMode = "FlatFace"
sketch14.addGeometry(Part.ArcOfCircle(Part.Circle(App.Vector(-221.999993, 0.000002, 0), App.Vector(0, 0, 1), 221.999993), math.radians(-0.000001), math.radians(36)), False)
sketch14.addConstraint(Sketcher.Constraint("Coincident", 0, 1, -1, 1))
sketch14.addConstraint(Sketcher.Constraint("Radius", 0, Q("221.999993 mm")))
sketch14.addConstraint(Sketcher.Constraint("DistanceX", 0, 2, -1, 1, Q("42.398227 mm")))
sketch14.addConstraint(Sketcher.Constraint("DistanceY", -1, 1, 0, 2, Q("130.488326 mm")))
doc.recompute()

subtractivepipe5 = body.newObject("PartDesign::SubtractivePipe", "SubtractivePipe004")
subtractivepipe5.Profile = sketch13
subtractivepipe5.Spine = (sketch14, ["Edge1"])

# Sketch on XZ plane
sketch15 = body.newObject("Sketcher::SketchObject", "Sketch014")
sketch15.AttachmentSupport = (doc.getObject("XZ_Plane"), [""])
sketch15.MapMode = "FlatFace"
sketch15.addGeometry(Part.LineSegment(App.Vector(-16, -3, 0), App.Vector(-16, -6, 0)), False)
sketch15.addGeometry(Part.LineSegment(App.Vector(-16, -6, 0), App.Vector(-9, -6, 0)), False)
sketch15.addGeometry(Part.LineSegment(App.Vector(-9, -6, 0), App.Vector(-9, -3, 0)), False)
sketch15.addGeometry(Part.LineSegment(App.Vector(-9, -3, 0), App.Vector(-16, -3, 0)), False)
sketch15.addConstraint(Sketcher.Constraint("Coincident", 0, 2, 1, 1))
sketch15.addConstraint(Sketcher.Constraint("Coincident", 1, 2, 2, 1))
sketch15.addConstraint(Sketcher.Constraint("Coincident", 2, 2, 3, 1))
sketch15.addConstraint(Sketcher.Constraint("Coincident", 3, 2, 0, 1))
sketch15.addConstraint(Sketcher.Constraint("Vertical", 0))
sketch15.addConstraint(Sketcher.Constraint("Horizontal", 1))
sketch15.addConstraint(Sketcher.Constraint("Vertical", 2))
sketch15.addConstraint(Sketcher.Constraint("Horizontal", 3))
sketch15.addConstraint(Sketcher.Constraint("DistanceX", 1, 1, 1, 2, Q("7 mm")))
sketch15.addConstraint(Sketcher.Constraint("DistanceY", 0, 2, 0, 1, Q("3 mm")))
sketch15.addConstraint(Sketcher.Constraint("DistanceX", 0, 2, -1, 1, Q("16 mm")))
sketch15.addConstraint(Sketcher.Constraint("DistanceY", 0, 2, -1, 1, Q("6 mm")))

# Sketch on XY plane
sketch16 = body.newObject("Sketcher::SketchObject", "Sketch015")
sketch16.AttachmentSupport = (doc.getObject("XY_Plane"), [""])
sketch16.MapMode = "FlatFace"
sketch16.addGeometry(Part.LineSegment(App.Vector(0, 0, 0), App.Vector(0, 144, 0)), False)
sketch16.addConstraint(Sketcher.Constraint("Vertical", 0))
sketch16.addConstraint(Sketcher.Constraint("Coincident", 0, 1, -1, 1))
sketch16.addConstraint(Sketcher.Constraint("DistanceY", 0, 1, 0, 2, Q("144 mm")))
doc.recompute()

subtractivepipe6 = body.newObject("PartDesign::SubtractivePipe", "SubtractivePipe005")
subtractivepipe6.Profile = sketch15
subtractivepipe6.Spine = (sketch16, ["Edge1"])

# Sketch on XZ plane
sketch17 = body.newObject("Sketcher::SketchObject", "Sketch016")
sketch17.AttachmentSupport = (doc.getObject("XZ_Plane"), [""])
sketch17.MapMode = "FlatFace"
sketch17.addGeometry(Part.LineSegment(App.Vector(9, -3, 0), App.Vector(9, -6, 0)), False)
sketch17.addGeometry(Part.LineSegment(App.Vector(9, -6, 0), App.Vector(16, -6, 0)), False)
sketch17.addGeometry(Part.LineSegment(App.Vector(16, -6, 0), App.Vector(16, -3, 0)), False)
sketch17.addGeometry(Part.LineSegment(App.Vector(16, -3, 0), App.Vector(9, -3, 0)), False)
sketch17.addConstraint(Sketcher.Constraint("Coincident", 0, 2, 1, 1))
sketch17.addConstraint(Sketcher.Constraint("Coincident", 1, 2, 2, 1))
sketch17.addConstraint(Sketcher.Constraint("Coincident", 2, 2, 3, 1))
sketch17.addConstraint(Sketcher.Constraint("Coincident", 3, 2, 0, 1))
sketch17.addConstraint(Sketcher.Constraint("Vertical", 0))
sketch17.addConstraint(Sketcher.Constraint("Horizontal", 1))
sketch17.addConstraint(Sketcher.Constraint("Vertical", 2))
sketch17.addConstraint(Sketcher.Constraint("Horizontal", 3))
sketch17.addConstraint(Sketcher.Constraint("DistanceX", 1, 1, 1, 2, Q("7 mm")))
sketch17.addConstraint(Sketcher.Constraint("DistanceY", 0, 2, 0, 1, Q("3 mm")))
sketch17.addConstraint(Sketcher.Constraint("DistanceX", -1, 1, 0, 2, Q("9 mm")))
sketch17.addConstraint(Sketcher.Constraint("DistanceY", 0, 2, -1, 1, Q("6 mm")))

# Sketch on XY plane
sketch18 = body.newObject("Sketcher::SketchObject", "Sketch017")
sketch18.AttachmentSupport = (doc.getObject("XY_Plane"), [""])
sketch18.MapMode = "FlatFace"
sketch18.addGeometry(Part.ArcOfCircle(Part.Circle(App.Vector(-221.999993, 0.000002, 0), App.Vector(0, 0, 1), 221.999993), math.radians(-0.000001), math.radians(36)), False)
sketch18.addConstraint(Sketcher.Constraint("Coincident", 0, 1, -1, 1))
sketch18.addConstraint(Sketcher.Constraint("Radius", 0, Q("221.999993 mm")))
sketch18.addConstraint(Sketcher.Constraint("DistanceX", 0, 2, -1, 1, Q("42.398227 mm")))
sketch18.addConstraint(Sketcher.Constraint("DistanceY", -1, 1, 0, 2, Q("130.488326 mm")))
doc.recompute()

subtractivepipe7 = body.newObject("PartDesign::SubtractivePipe", "SubtractivePipe006")
subtractivepipe7.Profile = sketch17
subtractivepipe7.Spine = (sketch18, ["Edge1"])

# Sketch on XY plane
sketch19 = body.newObject("Sketcher::SketchObject", "Sketch018")
sketch19.AttachmentSupport = (doc.getObject("XY_Plane"), [""])
sketch19.MapMode = "FlatFace"
sketch19.addGeometry(Part.LineSegment(App.Vector(4.5, 144, 0), App.Vector(-4.5, 144, 0)), False)
sketch19.addGeometry(Part.LineSegment(App.Vector(-4.5, 144, 0), App.Vector(-4.5, 137, 0)), False)
sketch19.addGeometry(Part.ArcOfCircle(Part.Circle(App.Vector(0, 131.638097, 0), App.Vector(0, 0, 1), 7), math.radians(130.0052), math.radians(409.9948)), False)
sketch19.addGeometry(Part.LineSegment(App.Vector(4.5, 137, 0), App.Vector(4.5, 144, 0)), False)
sketch19.addConstraint(Sketcher.Constraint("Coincident", 0, 2, 1, 1))
sketch19.addConstraint(Sketcher.Constraint("Coincident", 1, 2, 2, 1))
sketch19.addConstraint(Sketcher.Constraint("Coincident", 2, 2, 3, 1))
sketch19.addConstraint(Sketcher.Constraint("Coincident", 3, 2, 0, 1))
sketch19.addConstraint(Sketcher.Constraint("Horizontal", 0))
sketch19.addConstraint(Sketcher.Constraint("Vertical", 1))
sketch19.addConstraint(Sketcher.Constraint("Vertical", 3))
sketch19.addConstraint(Sketcher.Constraint("Symmetric", 1, 2, 2, 2, -2))
sketch19.addConstraint(Sketcher.Constraint("Radius", 2, Q("7 mm")))
sketch19.addConstraint(Sketcher.Constraint("DistanceX", 0, 2, 0, 1, Q("9 mm")))
sketch19.addConstraint(Sketcher.Constraint("DistanceY", 1, 2, 1, 1, Q("7 mm")))
sketch19.addConstraint(Sketcher.Constraint("DistanceY", -1, 1, 0, 2, Q("144 mm")))
pocket1 = body.newObject("PartDesign::Pocket", "Pocket")
pocket1.Profile = sketch19
pocket1.Type = "ThroughAll"
pocket1.Midplane = True

# Sketch on XY plane
sketch20 = body.newObject("Sketcher::SketchObject", "Sketch019")
sketch20.AttachmentSupport = (doc.getObject("XY_Plane"), [""])
sketch20.MapMode = "FlatFace"
sketch20.addGeometry(Part.LineSegment(App.Vector(-4.5, 0, 0), App.Vector(4.5, 0, 0)), False)
sketch20.addGeometry(Part.LineSegment(App.Vector(4.5, 0, 0), App.Vector(4.5, 7, 0)), False)
sketch20.addGeometry(Part.ArcOfCircle(Part.Circle(App.Vector(0, 12.361903, 0), App.Vector(0, 0, 1), 7), math.radians(-49.9948), math.radians(229.9948)), False)
sketch20.addGeometry(Part.LineSegment(App.Vector(-4.5, 7, 0), App.Vector(-4.5, 0, 0)), False)
sketch20.addConstraint(Sketcher.Constraint("Coincident", 0, 2, 1, 1))
sketch20.addConstraint(Sketcher.Constraint("Coincident", 1, 2, 2, 1))
sketch20.addConstraint(Sketcher.Constraint("Coincident", 2, 2, 3, 1))
sketch20.addConstraint(Sketcher.Constraint("Coincident", 3, 2, 0, 1))
sketch20.addConstraint(Sketcher.Constraint("Horizontal", 0))
sketch20.addConstraint(Sketcher.Constraint("Vertical", 1))
sketch20.addConstraint(Sketcher.Constraint("Vertical", 3))
sketch20.addConstraint(Sketcher.Constraint("Symmetric", 0, 2, 3, 2, -1, 1))
sketch20.addConstraint(Sketcher.Constraint("PointOnObject", 2, 3, -2))
sketch20.addConstraint(Sketcher.Constraint("Radius", 2, Q("7 mm")))
sketch20.addConstraint(Sketcher.Constraint("DistanceX", 0, 1, 0, 2, Q("9 mm")))
sketch20.addConstraint(Sketcher.Constraint("DistanceY", 1, 1, 1, 2, Q("7 mm")))
pocket2 = body.newObject("PartDesign::Pocket", "Pocket001")
pocket2.Profile = sketch20
pocket2.Type = "ThroughAll"
pocket2.Midplane = True
body2 = doc.addObject("PartDesign::Body", "Body001")

# Sketch on XY plane
sketch21 = body2.newObject("Sketcher::SketchObject", "Sketch020")
sketch21.AttachmentSupport = (doc.getObject("XY_Plane001"), [""])
sketch21.MapMode = "FlatFace"
sketch21.addGeometry(Part.LineSegment(App.Vector(-44.825278, 128.72497, 0), App.Vector(-39.971176, 132.251682, 0)), False)
sketch21.addGeometry(Part.LineSegment(App.Vector(-39.971176, 132.251682, 0), App.Vector(-44.673458, 138.723818, 0)), False)
sketch21.addGeometry(Part.ArcOfCircle(Part.Circle(App.Vector(-49.45165, 140.19653, 0), App.Vector(0, 0, 1), 5), math.radians(-17.130099), math.radians(269.130106)), False)
sketch21.addGeometry(Part.LineSegment(App.Vector(-49.52756, 135.197106, 0), App.Vector(-44.825278, 128.72497, 0)), False)
sketch21.addConstraint(Sketcher.Constraint("Coincident", 0, 2, 1, 1))
sketch21.addConstraint(Sketcher.Constraint("Coincident", 1, 2, 2, 1))
sketch21.addConstraint(Sketcher.Constraint("Coincident", 2, 2, 3, 1))
sketch21.addConstraint(Sketcher.Constraint("Coincident", 3, 2, 0, 1))
sketch21.addConstraint(Sketcher.Constraint("Perpendicular", 0, 1))
sketch21.addConstraint(Sketcher.Constraint("Parallel", 1, 3))
sketch21.addConstraint(Sketcher.Constraint("Equal", 1, 3))
sketch21.addConstraint(Sketcher.Constraint("Radius", 2, Q("5 mm")))
sketch21.addConstraint(Sketcher.Constraint("Angle", 0, Q("36.000004 deg")))
sketch21.addConstraint(Sketcher.Constraint("Distance", 0, Q("6 mm")))
sketch21.addConstraint(Sketcher.Constraint("Distance", 1, Q("8 mm")))
sketch21.addConstraint(Sketcher.Constraint("DistanceX", 2, 3, -1, 1, Q("49.45165 mm")))
sketch21.addConstraint(Sketcher.Constraint("DistanceY", -1, 1, 2, 3, Q("140.19653 mm")))
pad1 = body2.newObject("PartDesign::Pad", "Pad")
pad1.Profile = sketch21
pad1.Length = 12
pad1.Midplane = True

doc.recompute()
